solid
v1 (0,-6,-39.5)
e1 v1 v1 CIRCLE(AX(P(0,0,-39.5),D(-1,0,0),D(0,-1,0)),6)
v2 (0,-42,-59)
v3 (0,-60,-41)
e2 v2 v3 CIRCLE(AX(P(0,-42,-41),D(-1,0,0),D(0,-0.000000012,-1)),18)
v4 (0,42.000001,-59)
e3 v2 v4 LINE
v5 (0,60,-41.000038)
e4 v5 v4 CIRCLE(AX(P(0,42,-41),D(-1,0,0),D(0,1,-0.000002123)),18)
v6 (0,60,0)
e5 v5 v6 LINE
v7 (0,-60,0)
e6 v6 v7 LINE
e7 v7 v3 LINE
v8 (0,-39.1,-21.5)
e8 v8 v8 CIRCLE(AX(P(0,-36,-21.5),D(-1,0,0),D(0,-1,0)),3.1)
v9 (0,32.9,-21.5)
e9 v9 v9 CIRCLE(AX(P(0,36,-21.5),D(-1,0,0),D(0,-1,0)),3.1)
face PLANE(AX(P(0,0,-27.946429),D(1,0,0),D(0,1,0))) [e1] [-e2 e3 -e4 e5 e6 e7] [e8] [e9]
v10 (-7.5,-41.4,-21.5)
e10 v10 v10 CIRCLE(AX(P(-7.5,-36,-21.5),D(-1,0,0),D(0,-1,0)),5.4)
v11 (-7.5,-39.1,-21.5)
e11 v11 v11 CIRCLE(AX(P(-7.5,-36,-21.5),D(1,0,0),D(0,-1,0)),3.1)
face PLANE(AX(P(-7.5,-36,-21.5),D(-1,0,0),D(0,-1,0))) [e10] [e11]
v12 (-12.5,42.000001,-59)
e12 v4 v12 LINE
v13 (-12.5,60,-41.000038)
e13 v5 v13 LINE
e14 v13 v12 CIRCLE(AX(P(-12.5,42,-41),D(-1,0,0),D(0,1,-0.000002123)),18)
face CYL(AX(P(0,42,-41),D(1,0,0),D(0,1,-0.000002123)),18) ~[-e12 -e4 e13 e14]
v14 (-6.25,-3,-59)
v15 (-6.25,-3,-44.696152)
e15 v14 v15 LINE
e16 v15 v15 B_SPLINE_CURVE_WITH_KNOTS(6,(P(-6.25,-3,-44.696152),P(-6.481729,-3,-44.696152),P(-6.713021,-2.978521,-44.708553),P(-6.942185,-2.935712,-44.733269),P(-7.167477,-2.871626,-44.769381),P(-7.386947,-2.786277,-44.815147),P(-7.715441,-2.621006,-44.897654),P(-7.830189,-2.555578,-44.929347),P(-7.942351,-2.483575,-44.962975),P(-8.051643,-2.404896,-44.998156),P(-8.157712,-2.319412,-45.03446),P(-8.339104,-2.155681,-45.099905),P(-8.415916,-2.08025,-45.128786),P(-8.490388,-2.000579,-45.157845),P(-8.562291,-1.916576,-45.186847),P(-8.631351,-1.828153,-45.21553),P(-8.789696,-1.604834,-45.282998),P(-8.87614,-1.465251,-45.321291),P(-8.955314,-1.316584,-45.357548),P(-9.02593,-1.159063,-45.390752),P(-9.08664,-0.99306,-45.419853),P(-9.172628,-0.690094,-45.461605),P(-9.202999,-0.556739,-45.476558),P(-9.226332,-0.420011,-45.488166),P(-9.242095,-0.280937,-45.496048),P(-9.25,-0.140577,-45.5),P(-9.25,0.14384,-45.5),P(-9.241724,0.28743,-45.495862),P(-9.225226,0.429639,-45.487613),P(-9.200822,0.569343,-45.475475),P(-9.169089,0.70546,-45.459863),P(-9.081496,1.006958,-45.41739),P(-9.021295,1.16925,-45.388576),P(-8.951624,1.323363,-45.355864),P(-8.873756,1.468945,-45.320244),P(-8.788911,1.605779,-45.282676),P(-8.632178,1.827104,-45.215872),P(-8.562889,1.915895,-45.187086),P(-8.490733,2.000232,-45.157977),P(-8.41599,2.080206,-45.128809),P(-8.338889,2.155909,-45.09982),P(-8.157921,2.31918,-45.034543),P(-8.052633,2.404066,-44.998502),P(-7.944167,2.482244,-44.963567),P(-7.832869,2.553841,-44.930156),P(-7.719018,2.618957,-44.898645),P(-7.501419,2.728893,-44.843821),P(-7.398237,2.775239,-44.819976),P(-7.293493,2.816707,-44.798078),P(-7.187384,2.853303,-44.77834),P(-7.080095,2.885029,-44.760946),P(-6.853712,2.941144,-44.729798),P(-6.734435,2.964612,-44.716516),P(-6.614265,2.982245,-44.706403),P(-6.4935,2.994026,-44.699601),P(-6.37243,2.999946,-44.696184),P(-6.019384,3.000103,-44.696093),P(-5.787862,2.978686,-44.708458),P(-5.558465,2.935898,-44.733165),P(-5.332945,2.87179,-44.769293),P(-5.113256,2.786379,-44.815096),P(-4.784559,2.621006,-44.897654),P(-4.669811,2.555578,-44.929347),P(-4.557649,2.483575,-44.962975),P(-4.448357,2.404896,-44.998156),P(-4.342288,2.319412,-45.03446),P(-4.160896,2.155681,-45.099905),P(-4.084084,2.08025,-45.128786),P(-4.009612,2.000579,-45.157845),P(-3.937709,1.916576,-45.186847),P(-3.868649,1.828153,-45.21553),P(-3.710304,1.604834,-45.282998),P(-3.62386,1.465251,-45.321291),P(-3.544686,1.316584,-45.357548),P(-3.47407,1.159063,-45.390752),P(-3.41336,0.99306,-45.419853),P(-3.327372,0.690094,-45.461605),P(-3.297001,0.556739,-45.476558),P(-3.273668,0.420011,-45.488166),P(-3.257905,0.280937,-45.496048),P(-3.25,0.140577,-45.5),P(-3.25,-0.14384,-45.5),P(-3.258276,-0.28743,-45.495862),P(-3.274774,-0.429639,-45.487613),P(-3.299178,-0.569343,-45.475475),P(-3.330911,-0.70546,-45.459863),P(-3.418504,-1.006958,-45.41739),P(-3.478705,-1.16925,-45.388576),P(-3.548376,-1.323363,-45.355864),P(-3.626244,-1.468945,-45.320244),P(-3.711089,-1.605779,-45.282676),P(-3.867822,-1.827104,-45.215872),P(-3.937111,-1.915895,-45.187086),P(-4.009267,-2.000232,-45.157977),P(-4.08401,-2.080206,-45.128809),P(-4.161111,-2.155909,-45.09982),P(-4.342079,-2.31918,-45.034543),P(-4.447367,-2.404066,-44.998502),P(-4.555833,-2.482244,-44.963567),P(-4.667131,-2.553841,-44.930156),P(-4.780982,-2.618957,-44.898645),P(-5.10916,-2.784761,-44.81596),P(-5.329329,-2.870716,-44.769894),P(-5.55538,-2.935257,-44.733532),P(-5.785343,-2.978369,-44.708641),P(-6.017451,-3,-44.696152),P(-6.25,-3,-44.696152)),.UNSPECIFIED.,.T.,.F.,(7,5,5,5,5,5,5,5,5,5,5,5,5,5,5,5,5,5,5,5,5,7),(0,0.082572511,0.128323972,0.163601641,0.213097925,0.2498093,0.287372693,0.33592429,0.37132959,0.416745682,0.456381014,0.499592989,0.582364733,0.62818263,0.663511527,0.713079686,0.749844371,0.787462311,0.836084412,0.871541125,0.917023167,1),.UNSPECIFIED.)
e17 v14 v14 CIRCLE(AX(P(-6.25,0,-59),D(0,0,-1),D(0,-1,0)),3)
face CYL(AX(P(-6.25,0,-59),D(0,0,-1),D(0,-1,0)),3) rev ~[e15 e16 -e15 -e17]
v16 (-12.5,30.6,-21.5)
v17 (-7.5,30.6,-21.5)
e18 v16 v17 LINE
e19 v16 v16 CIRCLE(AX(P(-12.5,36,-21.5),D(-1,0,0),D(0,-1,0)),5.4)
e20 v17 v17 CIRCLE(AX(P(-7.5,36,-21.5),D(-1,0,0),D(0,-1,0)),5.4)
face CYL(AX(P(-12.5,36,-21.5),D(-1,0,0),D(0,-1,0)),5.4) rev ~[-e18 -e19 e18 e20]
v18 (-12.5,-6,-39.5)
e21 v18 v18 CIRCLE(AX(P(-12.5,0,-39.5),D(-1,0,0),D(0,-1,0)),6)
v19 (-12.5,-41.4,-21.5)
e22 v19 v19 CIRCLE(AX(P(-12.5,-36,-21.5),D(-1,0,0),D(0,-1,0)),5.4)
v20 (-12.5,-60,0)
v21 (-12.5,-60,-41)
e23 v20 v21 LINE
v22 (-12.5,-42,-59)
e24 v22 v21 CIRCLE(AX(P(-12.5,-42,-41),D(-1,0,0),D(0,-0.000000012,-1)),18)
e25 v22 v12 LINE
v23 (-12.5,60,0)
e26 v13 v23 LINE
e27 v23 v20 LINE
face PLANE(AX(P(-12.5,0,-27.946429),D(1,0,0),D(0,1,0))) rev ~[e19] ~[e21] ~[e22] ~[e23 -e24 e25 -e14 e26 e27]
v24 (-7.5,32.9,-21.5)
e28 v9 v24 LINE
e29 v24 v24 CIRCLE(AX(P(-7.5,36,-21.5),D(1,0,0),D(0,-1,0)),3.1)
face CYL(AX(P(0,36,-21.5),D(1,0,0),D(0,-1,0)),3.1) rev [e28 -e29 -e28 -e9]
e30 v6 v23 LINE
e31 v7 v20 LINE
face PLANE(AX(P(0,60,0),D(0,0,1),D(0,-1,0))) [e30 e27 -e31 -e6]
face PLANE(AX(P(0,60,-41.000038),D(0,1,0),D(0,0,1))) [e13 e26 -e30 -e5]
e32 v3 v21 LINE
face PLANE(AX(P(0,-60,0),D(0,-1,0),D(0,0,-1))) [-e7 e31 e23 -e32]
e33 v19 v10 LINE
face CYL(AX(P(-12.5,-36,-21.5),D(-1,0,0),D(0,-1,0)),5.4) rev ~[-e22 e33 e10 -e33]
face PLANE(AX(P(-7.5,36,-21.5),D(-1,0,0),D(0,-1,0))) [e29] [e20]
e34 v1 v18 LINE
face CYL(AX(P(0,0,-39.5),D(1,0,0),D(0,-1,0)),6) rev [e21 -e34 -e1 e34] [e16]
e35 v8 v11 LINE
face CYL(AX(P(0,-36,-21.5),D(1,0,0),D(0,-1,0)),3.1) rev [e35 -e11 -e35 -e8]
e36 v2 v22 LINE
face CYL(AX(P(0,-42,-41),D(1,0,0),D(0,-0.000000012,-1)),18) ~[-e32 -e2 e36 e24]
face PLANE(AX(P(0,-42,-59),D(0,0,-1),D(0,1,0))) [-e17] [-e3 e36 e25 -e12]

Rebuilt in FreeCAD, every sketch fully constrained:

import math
import FreeCAD as App
import Part
import Sketcher
from FreeCAD import Vector

doc = App.newDocument("Part")
body = doc.addObject("PartDesign::Body", "Body")

# Sketch on YZ plane
sketch1 = doc.addObject("Sketcher::SketchObject", "Sketch")
body.addObject(sketch1)
sketch1.AttachmentSupport = (doc.YZ_Plane, [""])
sketch1.MapMode = "FlatFace"
sketch1.addGeometry(Part.LineSegment(Vector(-60, 0, 0), Vector(60, 0, 0)), False)
sketch1.addGeometry(Part.LineSegment(Vector(60, 0, 0), Vector(60, -41, 0)), False)
sketch1.addGeometry(Part.ArcOfCircle(Part.Circle(Vector(42, -41, 0), Vector(0, 0, 1), 18), math.radians(-90), math.radians(0)), False)
sketch1.addGeometry(Part.LineSegment(Vector(42, -59, 0), Vector(-42, -59, 0)), False)
sketch1.addGeometry(Part.ArcOfCircle(Part.Circle(Vector(-42, -41, 0), Vector(0, 0, 1), 18), math.radians(-180), math.radians(-90)), False)
sketch1.addGeometry(Part.LineSegment(Vector(-60, -41, 0), Vector(-60, 0, 0)), False)
sketch1.addGeometry(Part.Circle(Vector(0, -39.5, 0), Vector(0, 0, 1), 6), False)
sketch1.addGeometry(Part.Circle(Vector(-36, -21.5, 0), Vector(0, 0, 1), 3.1), False)
sketch1.addGeometry(Part.Circle(Vector(36, -21.5, 0), Vector(0, 0, 1), 3.1), False)
sketch1.addConstraint(Sketcher.Constraint("Coincident", 0, 2, 1, 1))
sketch1.addConstraint(Sketcher.Constraint("Coincident", 1, 2, 2, 2))
sketch1.addConstraint(Sketcher.Constraint("Tangent", 2, 1, 3, 1))
sketch1.addConstraint(Sketcher.Constraint("Tangent", 3, 2, 4, 2))
sketch1.addConstraint(Sketcher.Constraint("Tangent", 4, 1, 5, 1))
sketch1.addConstraint(Sketcher.Constraint("Coincident", 5, 2, 0, 1))
sketch1.addConstraint(Sketcher.Constraint("Horizontal", 0))
sketch1.addConstraint(Sketcher.Constraint("Vertical", 1))
sketch1.addConstraint(Sketcher.Constraint("Horizontal", 3))
sketch1.addConstraint(Sketcher.Constraint("Vertical", 5))
sketch1.addConstraint(Sketcher.Constraint("Equal", 2, 4))
sketch1.addConstraint(Sketcher.Constraint("Equal", 7, 8))
sketch1.addConstraint(Sketcher.Constraint("Symmetric", 0, 2, 5, 2, -1, 1))
sketch1.addConstraint(Sketcher.Constraint("Symmetric", 7, 3, 8, 3, -2))
sketch1.addConstraint(Sketcher.Constraint("PointOnObject", 6, 3, -2))
sketch1.addConstraint(Sketcher.Constraint("Diameter", 6, 12.0))
sketch1.addConstraint(Sketcher.Constraint("Radius", 2, 18.0))
sketch1.addConstraint(Sketcher.Constraint("Diameter", 7, 6.2))
sketch1.addConstraint(Sketcher.Constraint("DistanceX", 0, 1, 0, 2, 120.0))
sketch1.addConstraint(Sketcher.Constraint("DistanceY", 5, 1, 5, 2, 41.0))
sketch1.addConstraint(Sketcher.Constraint("DistanceX", 7, 3, -1, 1, 36.0))
sketch1.addConstraint(Sketcher.Constraint("DistanceY", 6, 3, 7, 3, 18.0))
sketch1.addConstraint(Sketcher.Constraint("DistanceY", 6, 3, -1, 1, 39.5))
sketch1.addConstraint(Sketcher.Constraint("DistanceY", 1, 2, 1, 1, 41.000038))
pad1 = doc.addObject("PartDesign::Pad", "Pad")
body.addObject(pad1)
pad1.Profile = sketch1
pad1.Length = 12.5
pad1.Reversed = True

# Sketch on YZ plane
sketch2 = doc.addObject("Sketcher::SketchObject", "Sketch001")
body.addObject(sketch2)
sketch2.AttachmentSupport = (doc.YZ_Plane, [""])
sketch2.MapMode = "FlatFace"
sketch2.AttachmentOffset = App.Placement(Vector(0, 0, -12.5), App.Rotation())
sketch2.addGeometry(Part.Circle(Vector(36, -22, 0), Vector(0, 0, 1), 5), False)
sketch2.addGeometry(Part.Circle(Vector(-36, -22, 0), Vector(0, 0, 1), 5), False)
sketch2.addConstraint(Sketcher.Constraint("Equal", 0, 1))
sketch2.addConstraint(Sketcher.Constraint("Symmetric", 0, 3, 1, 3, -2))
sketch2.addConstraint(Sketcher.Constraint("Diameter", 0, 10.8))
sketch2.addConstraint(Sketcher.Constraint("DistanceX", -1, 1, 0, 3, 36.0))
sketch2.addConstraint(Sketcher.Constraint("DistanceY", 0, 3, -1, 1, 21.5))
pocket1 = doc.addObject("PartDesign::Pocket", "Pocket")
body.addObject(pocket1)
pocket1.Profile = sketch2
pocket1.Length = 5
pocket1.Reversed = True

# Sketch on XY plane
sketch3 = doc.addObject("Sketcher::SketchObject", "Sketch002")
body.addObject(sketch3)
sketch3.AttachmentSupport = (doc.XY_Plane, [""])
sketch3.MapMode = "FlatFace"
sketch3.AttachmentOffset = App.Placement(Vector(0, 0, -59), App.Rotation())
sketch3.addGeometry(Part.Circle(Vector(-6.2, 0, 0), Vector(0, 0, 1), 3), False)
sketch3.addConstraint(Sketcher.Constraint("PointOnObject", 0, 3, -1))
sketch3.addConstraint(Sketcher.Constraint("Diameter", 0, 6.0))
sketch3.addConstraint(Sketcher.Constraint("DistanceX", 0, 3, -1, 1, 6.25))
pocket2 = doc.addObject("PartDesign::Pocket", "Pocket001")
body.addObject(pocket2)
pocket2.Profile = sketch3
pocket2.Length = 15
pocket2.Reversed = True

doc.recompute()
